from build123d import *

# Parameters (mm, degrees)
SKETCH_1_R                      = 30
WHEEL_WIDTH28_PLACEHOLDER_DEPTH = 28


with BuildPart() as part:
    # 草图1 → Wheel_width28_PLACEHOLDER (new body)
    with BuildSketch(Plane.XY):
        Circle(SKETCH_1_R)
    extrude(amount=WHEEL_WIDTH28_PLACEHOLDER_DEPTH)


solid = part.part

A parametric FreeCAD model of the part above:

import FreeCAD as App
import Part
import Sketcher
from FreeCAD import Vector

doc = App.newDocument("Part")
params = doc.addObject("Spreadsheet::Sheet", "Params")
for row, (alias, value) in enumerate([
    ("sketch1_diameter", "60 mm"),
    ("pad1_length", "28 mm"),
], start=1):
    params.set(f"A{row}", alias)
    params.set(f"B{row}", "=" + value)
    params.setAlias(f"B{row}", alias)

body = doc.addObject("PartDesign::Body", "Body")

# Sketch on XY plane
sketch1 = doc.addObject("Sketcher::SketchObject", "Sketch")
body.addObject(sketch1)
sketch1.AttachmentSupport = (doc.XY_Plane, [""])
sketch1.MapMode = "FlatFace"
sketch1.addGeometry(Part.Circle(Vector(0, 0, 0), Vector(0, 0, 1), 30), False)
sketch1.addConstraint([
    Sketcher.Constraint("Coincident", 0, 3, -1, 1),
    Sketcher.Constraint("Diameter", 0, 60.0),
])
sketch1.setExpression("Constraints[1]", "Params.sketch1_diameter")
pad1 = doc.addObject("PartDesign::Pad", "Pad")
body.addObject(pad1)
pad1.Profile = sketch1
pad1.setExpression("Length", "Params.pad1_length")

doc.recompute()
